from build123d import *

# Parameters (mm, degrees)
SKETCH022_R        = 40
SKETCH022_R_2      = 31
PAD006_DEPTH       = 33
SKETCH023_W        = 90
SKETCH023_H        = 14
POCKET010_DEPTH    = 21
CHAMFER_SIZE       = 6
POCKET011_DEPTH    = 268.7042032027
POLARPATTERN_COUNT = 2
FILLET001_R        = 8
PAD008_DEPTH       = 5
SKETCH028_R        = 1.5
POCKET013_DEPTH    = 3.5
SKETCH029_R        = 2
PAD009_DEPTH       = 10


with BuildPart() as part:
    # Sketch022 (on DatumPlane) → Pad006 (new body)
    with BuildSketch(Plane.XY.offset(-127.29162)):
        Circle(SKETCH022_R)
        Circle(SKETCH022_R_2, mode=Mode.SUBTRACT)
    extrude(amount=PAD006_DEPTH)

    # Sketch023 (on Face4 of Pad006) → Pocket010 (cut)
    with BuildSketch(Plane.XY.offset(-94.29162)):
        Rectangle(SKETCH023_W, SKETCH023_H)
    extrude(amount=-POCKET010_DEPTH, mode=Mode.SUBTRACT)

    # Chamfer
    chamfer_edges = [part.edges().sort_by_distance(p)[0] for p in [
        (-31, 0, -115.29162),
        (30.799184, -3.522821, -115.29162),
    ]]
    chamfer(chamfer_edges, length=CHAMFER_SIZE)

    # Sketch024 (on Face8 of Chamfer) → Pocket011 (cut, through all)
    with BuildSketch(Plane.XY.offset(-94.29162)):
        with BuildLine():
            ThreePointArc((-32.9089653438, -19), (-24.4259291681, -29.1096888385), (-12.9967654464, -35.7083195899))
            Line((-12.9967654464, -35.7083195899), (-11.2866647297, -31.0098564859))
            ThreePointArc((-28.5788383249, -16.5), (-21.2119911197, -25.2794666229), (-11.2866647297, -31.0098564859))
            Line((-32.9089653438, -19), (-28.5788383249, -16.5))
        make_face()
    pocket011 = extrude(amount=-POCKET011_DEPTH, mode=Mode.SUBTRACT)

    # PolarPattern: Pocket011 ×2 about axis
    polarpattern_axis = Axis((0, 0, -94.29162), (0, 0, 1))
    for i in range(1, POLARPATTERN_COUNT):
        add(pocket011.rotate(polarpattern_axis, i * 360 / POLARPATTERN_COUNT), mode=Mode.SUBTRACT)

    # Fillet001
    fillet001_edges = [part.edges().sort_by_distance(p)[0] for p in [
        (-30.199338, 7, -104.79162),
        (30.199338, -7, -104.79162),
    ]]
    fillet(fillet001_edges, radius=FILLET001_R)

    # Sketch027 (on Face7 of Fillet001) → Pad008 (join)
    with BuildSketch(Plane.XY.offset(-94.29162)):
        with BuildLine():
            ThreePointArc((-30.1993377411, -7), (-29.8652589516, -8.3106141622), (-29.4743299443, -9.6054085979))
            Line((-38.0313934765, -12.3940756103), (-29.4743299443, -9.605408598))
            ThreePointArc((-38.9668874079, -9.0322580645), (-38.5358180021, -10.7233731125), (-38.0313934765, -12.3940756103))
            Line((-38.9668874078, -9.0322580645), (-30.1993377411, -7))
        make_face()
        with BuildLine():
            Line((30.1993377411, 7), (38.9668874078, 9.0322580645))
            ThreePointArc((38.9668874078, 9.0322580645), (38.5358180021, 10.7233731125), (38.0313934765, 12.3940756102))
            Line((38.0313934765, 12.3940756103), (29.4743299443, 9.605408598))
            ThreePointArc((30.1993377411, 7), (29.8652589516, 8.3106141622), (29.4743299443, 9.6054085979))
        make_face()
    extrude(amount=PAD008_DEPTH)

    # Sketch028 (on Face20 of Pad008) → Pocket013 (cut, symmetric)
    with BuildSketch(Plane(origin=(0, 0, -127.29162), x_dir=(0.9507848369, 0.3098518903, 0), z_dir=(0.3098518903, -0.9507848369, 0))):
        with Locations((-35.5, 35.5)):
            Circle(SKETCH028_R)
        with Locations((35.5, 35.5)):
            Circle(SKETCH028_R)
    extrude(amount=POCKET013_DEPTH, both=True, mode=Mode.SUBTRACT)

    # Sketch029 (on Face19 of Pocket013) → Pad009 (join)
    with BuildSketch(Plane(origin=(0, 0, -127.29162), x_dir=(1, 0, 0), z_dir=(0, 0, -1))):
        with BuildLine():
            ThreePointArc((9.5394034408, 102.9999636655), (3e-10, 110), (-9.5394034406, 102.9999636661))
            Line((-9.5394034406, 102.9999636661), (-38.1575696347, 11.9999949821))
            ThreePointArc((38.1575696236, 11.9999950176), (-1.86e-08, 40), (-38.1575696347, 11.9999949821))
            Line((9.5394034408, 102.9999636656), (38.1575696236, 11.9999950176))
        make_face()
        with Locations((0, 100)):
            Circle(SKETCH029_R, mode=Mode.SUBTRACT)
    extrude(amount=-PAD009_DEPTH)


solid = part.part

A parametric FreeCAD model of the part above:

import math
import FreeCAD as App
import Part
import Sketcher

V = App.Vector
Q = App.Units.Quantity


def edges_at(feature, points):
    """Names of the edges that pass closest to the given points."""
    edges = feature.Shape.Edges
    near = lambda p: min(range(len(edges)), key=lambda i: edges[i].distToShape(Part.Vertex(*p))[0])
    return sorted({f"Edge{near(p) + 1}" for p in points})


def add_polygon(sketch, points):
    """Adds a closed chain of lines whose ends are joined by coincident constraints."""
    first, n = sketch.GeometryCount, len(points)
    for a, b in zip(points, points[1:] + points[:1]):
        sketch.addGeometry(Part.LineSegment(App.Vector(*a, 0), App.Vector(*b, 0)), False)
    for i in range(n):
        sketch.addConstraint(Sketcher.Constraint("Coincident", first + i, 2, first + (i + 1) % n, 1))

doc = App.newDocument("Part")
body = doc.addObject("PartDesign::Body", "Body")

# Sketch on XY plane
sketch1 = body.newObject("Sketcher::SketchObject", "Sketch")
sketch1.AttachmentSupport = (doc.getObject("XY_Plane"), [""])
sketch1.MapMode = "FlatFace"
sketch1.AttachmentOffset = App.Placement(V(0, 0, -127.29162), App.Rotation())
sketch1.addGeometry([
    Part.Circle(V(0, 0, 0), V(0, 0, 1), 40),
    Part.Circle(V(0, 0, 0), V(0, 0, 1), 31),
], False)
sketch1.addConstraint([
    Sketcher.Constraint("Coincident", 0, 3, -1, 1),
    Sketcher.Constraint("Coincident", 1, 3, -1, 1),
    Sketcher.Constraint("Diameter", 0, Q("80 mm")),
    Sketcher.Constraint("Diameter", 1, Q("62 mm")),
])
pad1 = body.newObject("PartDesign::Pad", "Pad")
pad1.Profile = sketch1
pad1.Length = 33

# Sketch on XY plane
sketch2 = body.newObject("Sketcher::SketchObject", "Sketch001")
sketch2.AttachmentSupport = (doc.getObject("XY_Plane"), [""])
sketch2.MapMode = "FlatFace"
sketch2.AttachmentOffset = App.Placement(V(0, 0, -94.29162), App.Rotation())
add_polygon(sketch2, [(-45, 7), (-45, -7), (45, -7), (45, 7)])  # lines 0-3
sketch2.addConstraint([
    Sketcher.Constraint("Vertical", 0),
    Sketcher.Constraint("Horizontal", 1),
    Sketcher.Constraint("Vertical", 2),
    Sketcher.Constraint("Horizontal", 3),
    Sketcher.Constraint("Symmetric", 0, 2, 2, 2, -1, 1),
    Sketcher.Constraint("DistanceX", 1, 1, 1, 2, Q("90 mm")),
    Sketcher.Constraint("DistanceY", 0, 2, 0, 1, Q("14 mm")),
])
pocket1 = body.newObject("PartDesign::Pocket", "Pocket")
pocket1.Profile = sketch2
pocket1.Length = 21
doc.recompute()

chamfer = body.newObject("PartDesign::Chamfer", "Chamfer")
chamfer.Base = (pocket1, edges_at(pocket1, [(-31, 0, -115.292), (30.799, -3.523, -115.292)]))
chamfer.Size = 6

# Sketch on XY plane
sketch3 = body.newObject("Sketcher::SketchObject", "Sketch002")
sketch3.AttachmentSupport = (doc.getObject("XY_Plane"), [""])
sketch3.MapMode = "FlatFace"
sketch3.AttachmentOffset = App.Placement(V(0, 0, -94.29162), App.Rotation())
sketch3.addGeometry([
    Part.ArcOfCircle(Part.Circle(V(0, 0, 0), V(0, 0, 1), 38), math.radians(-150), math.radians(-110)),
    Part.LineSegment(V(-13, -35.7, 0), V(-11.3, -31, 0)),
    Part.ArcOfCircle(Part.Circle(V(0, 0, 0), V(0, 0, 1), 33), math.radians(-150), math.radians(-110)),
    Part.LineSegment(V(-28.6, -16.5, 0), V(-32.9, -19, 0)),
], False)
sketch3.addConstraint([
    Sketcher.Constraint("Coincident", 0, 2, 1, 1),
    Sketcher.Constraint("Coincident", 1, 2, 2, 2),
    Sketcher.Constraint("Coincident", 2, 1, 3, 1),
    Sketcher.Constraint("Coincident", 3, 2, 0, 1),
    Sketcher.Constraint("Coincident", 0, 3, -1, 1),
    Sketcher.Constraint("Coincident", 2, 3, -1, 1),
    Sketcher.Constraint("Radius", 0, Q("38 mm")),
    Sketcher.Constraint("Radius", 2, Q("33 mm")),
    Sketcher.Constraint("Angle", 1, Q("70 deg")),
    Sketcher.Constraint("Angle", 3, Q("-150 deg")),
    Sketcher.Constraint("DistanceY", 3, 2, -1, 1, Q("19 mm")),
    Sketcher.Constraint("DistanceX", 3, 2, 1, 2, Q("21.622301 mm")),
])
pocket2 = body.newObject("PartDesign::Pocket", "Pocket001")
pocket2.Profile = sketch3
pocket2.Type = "ThroughAll"
doc.recompute()

polarpattern = body.newObject("PartDesign::PolarPattern", "PolarPattern")
polarpattern.Originals = [pocket2]
polarpattern.Axis = (doc.getObject("Z_Axis"), [""])
polarpattern.Angle = 360
polarpattern.Occurrences = 2
body.Tip = polarpattern
doc.recompute()

fillet = body.newObject("PartDesign::Fillet", "Fillet")
fillet.Base = (polarpattern, edges_at(polarpattern, [(-30.199, 7, -107.792), (30.199, -7, -107.792)]))
fillet.Radius = 8

# Sketch on XY plane
sketch4 = body.newObject("Sketcher::SketchObject", "Sketch003")
sketch4.AttachmentSupport = (doc.getObject("XY_Plane"), [""])
sketch4.MapMode = "FlatFace"
sketch4.AttachmentOffset = App.Placement(V(0, 0, -94.29162), App.Rotation())
sketch4.addGeometry([
    Part.ArcOfCircle(Part.Circle(V(0, 0, 0), V(0, 0, 1), 31), math.radians(-166.95), math.radians(-161.95)),  # 0
    Part.LineSegment(V(-30.2, -7, 0), V(-39, -9, 0)),  # 1
    Part.ArcOfCircle(Part.Circle(V(0, 0, 0), V(0, 0, 1), 40), math.radians(-166.95), math.radians(-161.95)),  # 2
    Part.LineSegment(V(-38, -12.4, 0), V(-29.5, -9.6, 0)),  # 3
    Part.LineSegment(V(30.2, 7, 0), V(39, 9, 0)),  # 4
    Part.ArcOfCircle(Part.Circle(V(0, 0, 0), V(0, 0, 1), 40), math.radians(13.05), math.radians(18.05)),  # 5
    Part.LineSegment(V(38, 12.4, 0), V(29.5, 9.6, 0)),  # 6
    Part.ArcOfCircle(Part.Circle(V(0, 0, 0), V(0, 0, 1), 31), math.radians(13.05), math.radians(18.05)),  # 7
], False)
sketch4.addConstraint([
    Sketcher.Constraint("Coincident", 0, 1, 1, 1),
    Sketcher.Constraint("Coincident", 1, 2, 2, 1),
    Sketcher.Constraint("Coincident", 2, 2, 3, 1),
    Sketcher.Constraint("Coincident", 3, 2, 0, 2),
    Sketcher.Constraint("Coincident", 4, 2, 5, 1),
    Sketcher.Constraint("Coincident", 5, 2, 6, 1),
    Sketcher.Constraint("Coincident", 6, 2, 7, 2),
    Sketcher.Constraint("Coincident", 7, 1, 4, 1),
    Sketcher.Constraint("Coincident", 0, 3, -1, 1),
    Sketcher.Constraint("Coincident", 2, 3, -1, 1),
    Sketcher.Constraint("Coincident", 5, 3, -1, 1),
    Sketcher.Constraint("Coincident", 7, 3, -1, 1),
    Sketcher.Constraint("Equal", 2, 5),
    Sketcher.Constraint("Equal", 0, 7),
    Sketcher.Constraint("Parallel", 1, 4),
    Sketcher.Constraint("Parallel", 3, 6),
    Sketcher.Constraint("Radius", 0, Q("31 mm")),
    Sketcher.Constraint("Radius", 2, Q("40 mm")),
    Sketcher.Constraint("DistanceY", 0, 1, -1, 1, Q("7 mm")),
    Sketcher.Constraint("DistanceY", -1, 1, 7, 1, Q("7 mm")),
    Sketcher.Constraint("DistanceY", 1, 2, -1, 1, Q("9.032258 mm")),
    Sketcher.Constraint("DistanceX", 3, 2, -1, 1, Q("29.47433 mm")),
    Sketcher.Constraint("DistanceX", -1, 1, 6, 2, Q("29.47433 mm")),
    Sketcher.Constraint("DistanceX", 2, 2, -1, 1, Q("38.031393 mm")),
])
pad2 = body.newObject("PartDesign::Pad", "Pad001")
pad2.Profile = sketch4
pad2.Length = 5

# Sketch on an angled plane
sketch5 = body.newObject("Sketcher::SketchObject", "Sketch004")
sketch5.Placement = App.Placement(V(0, 0, -127.29162), App.Rotation(V(0.950784837, 0.30985189, 0), V(0, 0, 1), V(0.30985189, -0.950784837, 0), "ZXY"))
sketch5.addGeometry([
    Part.Circle(V(-35.5, 35.5, 0), V(0, 0, 1), 1.5),
    Part.Circle(V(35.5, 35.5, 0), V(0, 0, 1), 1.5),
], False)
sketch5.addConstraint([
    Sketcher.Constraint("Equal", 0, 1),
    Sketcher.Constraint("Symmetric", 0, 3, 1, 3, -2),
    Sketcher.Constraint("Diameter", 0, Q("3 mm")),
    Sketcher.Constraint("DistanceX", 0, 3, 1, 3, Q("71 mm")),
    Sketcher.Constraint("DistanceY", -1, 1, 0, 3, Q("35.5 mm")),
])
pocket3 = body.newObject("PartDesign::Pocket", "Pocket002")
pocket3.Profile = sketch5
pocket3.Length = 7
pocket3.Midplane = True

# Sketch on XY plane
sketch6 = body.newObject("Sketcher::SketchObject", "Sketch005")
sketch6.AttachmentSupport = (doc.getObject("XY_Plane"), [""])
sketch6.MapMode = "FlatFace"
sketch6.AttachmentOffset = App.Placement(V(0, 0, -127.29162), App.Rotation())
sketch6.addGeometry([
    Part.ArcOfCircle(Part.Circle(V(0, -100, 0), V(0, 0, 1), 10), math.radians(-163), math.radians(-17)),  # 0
    Part.LineSegment(V(-9.5, -103, 0), V(-38.2, -12, 0)),  # 1
    Part.ArcOfCircle(Part.Circle(V(0, 0, 0), V(0, 0, 1), 40), math.radians(-163), math.radians(-17)),  # 2
    Part.LineSegment(V(38.2, -12, 0), V(9.5, -103, 0)),  # 3
    Part.Circle(V(0, -100, 0), V(0, 0, 1), 2),  # 4
], False)
sketch6.addConstraint([
    Sketcher.Constraint("Coincident", 0, 1, 1, 1),
    Sketcher.Constraint("Tangent", 1, 2, 2, 1),
    Sketcher.Constraint("Tangent", 2, 2, 3, 1),
    Sketcher.Constraint("Coincident", 3, 2, 0, 2),
    Sketcher.Constraint("Coincident", 2, 3, -1, 1),
    Sketcher.Constraint("Coincident", 4, 3, 0, 3),
    Sketcher.Constraint("Symmetric", 0, 1, 3, 2, -2),
    Sketcher.Constraint("Diameter", 4, Q("4 mm")),
    Sketcher.Constraint("Radius", 0, Q("10 mm")),
    Sketcher.Constraint("Radius", 2, Q("40 mm")),
    Sketcher.Constraint("DistanceY", 0, 3, -1, 1, Q("100 mm")),
    Sketcher.Constraint("DistanceY", 0, 1, 1, 2, Q("90.999969 mm")),
])
pad3 = body.newObject("PartDesign::Pad", "Pad002")
pad3.Profile = sketch6
pad3.Length = 10

doc.recompute()
